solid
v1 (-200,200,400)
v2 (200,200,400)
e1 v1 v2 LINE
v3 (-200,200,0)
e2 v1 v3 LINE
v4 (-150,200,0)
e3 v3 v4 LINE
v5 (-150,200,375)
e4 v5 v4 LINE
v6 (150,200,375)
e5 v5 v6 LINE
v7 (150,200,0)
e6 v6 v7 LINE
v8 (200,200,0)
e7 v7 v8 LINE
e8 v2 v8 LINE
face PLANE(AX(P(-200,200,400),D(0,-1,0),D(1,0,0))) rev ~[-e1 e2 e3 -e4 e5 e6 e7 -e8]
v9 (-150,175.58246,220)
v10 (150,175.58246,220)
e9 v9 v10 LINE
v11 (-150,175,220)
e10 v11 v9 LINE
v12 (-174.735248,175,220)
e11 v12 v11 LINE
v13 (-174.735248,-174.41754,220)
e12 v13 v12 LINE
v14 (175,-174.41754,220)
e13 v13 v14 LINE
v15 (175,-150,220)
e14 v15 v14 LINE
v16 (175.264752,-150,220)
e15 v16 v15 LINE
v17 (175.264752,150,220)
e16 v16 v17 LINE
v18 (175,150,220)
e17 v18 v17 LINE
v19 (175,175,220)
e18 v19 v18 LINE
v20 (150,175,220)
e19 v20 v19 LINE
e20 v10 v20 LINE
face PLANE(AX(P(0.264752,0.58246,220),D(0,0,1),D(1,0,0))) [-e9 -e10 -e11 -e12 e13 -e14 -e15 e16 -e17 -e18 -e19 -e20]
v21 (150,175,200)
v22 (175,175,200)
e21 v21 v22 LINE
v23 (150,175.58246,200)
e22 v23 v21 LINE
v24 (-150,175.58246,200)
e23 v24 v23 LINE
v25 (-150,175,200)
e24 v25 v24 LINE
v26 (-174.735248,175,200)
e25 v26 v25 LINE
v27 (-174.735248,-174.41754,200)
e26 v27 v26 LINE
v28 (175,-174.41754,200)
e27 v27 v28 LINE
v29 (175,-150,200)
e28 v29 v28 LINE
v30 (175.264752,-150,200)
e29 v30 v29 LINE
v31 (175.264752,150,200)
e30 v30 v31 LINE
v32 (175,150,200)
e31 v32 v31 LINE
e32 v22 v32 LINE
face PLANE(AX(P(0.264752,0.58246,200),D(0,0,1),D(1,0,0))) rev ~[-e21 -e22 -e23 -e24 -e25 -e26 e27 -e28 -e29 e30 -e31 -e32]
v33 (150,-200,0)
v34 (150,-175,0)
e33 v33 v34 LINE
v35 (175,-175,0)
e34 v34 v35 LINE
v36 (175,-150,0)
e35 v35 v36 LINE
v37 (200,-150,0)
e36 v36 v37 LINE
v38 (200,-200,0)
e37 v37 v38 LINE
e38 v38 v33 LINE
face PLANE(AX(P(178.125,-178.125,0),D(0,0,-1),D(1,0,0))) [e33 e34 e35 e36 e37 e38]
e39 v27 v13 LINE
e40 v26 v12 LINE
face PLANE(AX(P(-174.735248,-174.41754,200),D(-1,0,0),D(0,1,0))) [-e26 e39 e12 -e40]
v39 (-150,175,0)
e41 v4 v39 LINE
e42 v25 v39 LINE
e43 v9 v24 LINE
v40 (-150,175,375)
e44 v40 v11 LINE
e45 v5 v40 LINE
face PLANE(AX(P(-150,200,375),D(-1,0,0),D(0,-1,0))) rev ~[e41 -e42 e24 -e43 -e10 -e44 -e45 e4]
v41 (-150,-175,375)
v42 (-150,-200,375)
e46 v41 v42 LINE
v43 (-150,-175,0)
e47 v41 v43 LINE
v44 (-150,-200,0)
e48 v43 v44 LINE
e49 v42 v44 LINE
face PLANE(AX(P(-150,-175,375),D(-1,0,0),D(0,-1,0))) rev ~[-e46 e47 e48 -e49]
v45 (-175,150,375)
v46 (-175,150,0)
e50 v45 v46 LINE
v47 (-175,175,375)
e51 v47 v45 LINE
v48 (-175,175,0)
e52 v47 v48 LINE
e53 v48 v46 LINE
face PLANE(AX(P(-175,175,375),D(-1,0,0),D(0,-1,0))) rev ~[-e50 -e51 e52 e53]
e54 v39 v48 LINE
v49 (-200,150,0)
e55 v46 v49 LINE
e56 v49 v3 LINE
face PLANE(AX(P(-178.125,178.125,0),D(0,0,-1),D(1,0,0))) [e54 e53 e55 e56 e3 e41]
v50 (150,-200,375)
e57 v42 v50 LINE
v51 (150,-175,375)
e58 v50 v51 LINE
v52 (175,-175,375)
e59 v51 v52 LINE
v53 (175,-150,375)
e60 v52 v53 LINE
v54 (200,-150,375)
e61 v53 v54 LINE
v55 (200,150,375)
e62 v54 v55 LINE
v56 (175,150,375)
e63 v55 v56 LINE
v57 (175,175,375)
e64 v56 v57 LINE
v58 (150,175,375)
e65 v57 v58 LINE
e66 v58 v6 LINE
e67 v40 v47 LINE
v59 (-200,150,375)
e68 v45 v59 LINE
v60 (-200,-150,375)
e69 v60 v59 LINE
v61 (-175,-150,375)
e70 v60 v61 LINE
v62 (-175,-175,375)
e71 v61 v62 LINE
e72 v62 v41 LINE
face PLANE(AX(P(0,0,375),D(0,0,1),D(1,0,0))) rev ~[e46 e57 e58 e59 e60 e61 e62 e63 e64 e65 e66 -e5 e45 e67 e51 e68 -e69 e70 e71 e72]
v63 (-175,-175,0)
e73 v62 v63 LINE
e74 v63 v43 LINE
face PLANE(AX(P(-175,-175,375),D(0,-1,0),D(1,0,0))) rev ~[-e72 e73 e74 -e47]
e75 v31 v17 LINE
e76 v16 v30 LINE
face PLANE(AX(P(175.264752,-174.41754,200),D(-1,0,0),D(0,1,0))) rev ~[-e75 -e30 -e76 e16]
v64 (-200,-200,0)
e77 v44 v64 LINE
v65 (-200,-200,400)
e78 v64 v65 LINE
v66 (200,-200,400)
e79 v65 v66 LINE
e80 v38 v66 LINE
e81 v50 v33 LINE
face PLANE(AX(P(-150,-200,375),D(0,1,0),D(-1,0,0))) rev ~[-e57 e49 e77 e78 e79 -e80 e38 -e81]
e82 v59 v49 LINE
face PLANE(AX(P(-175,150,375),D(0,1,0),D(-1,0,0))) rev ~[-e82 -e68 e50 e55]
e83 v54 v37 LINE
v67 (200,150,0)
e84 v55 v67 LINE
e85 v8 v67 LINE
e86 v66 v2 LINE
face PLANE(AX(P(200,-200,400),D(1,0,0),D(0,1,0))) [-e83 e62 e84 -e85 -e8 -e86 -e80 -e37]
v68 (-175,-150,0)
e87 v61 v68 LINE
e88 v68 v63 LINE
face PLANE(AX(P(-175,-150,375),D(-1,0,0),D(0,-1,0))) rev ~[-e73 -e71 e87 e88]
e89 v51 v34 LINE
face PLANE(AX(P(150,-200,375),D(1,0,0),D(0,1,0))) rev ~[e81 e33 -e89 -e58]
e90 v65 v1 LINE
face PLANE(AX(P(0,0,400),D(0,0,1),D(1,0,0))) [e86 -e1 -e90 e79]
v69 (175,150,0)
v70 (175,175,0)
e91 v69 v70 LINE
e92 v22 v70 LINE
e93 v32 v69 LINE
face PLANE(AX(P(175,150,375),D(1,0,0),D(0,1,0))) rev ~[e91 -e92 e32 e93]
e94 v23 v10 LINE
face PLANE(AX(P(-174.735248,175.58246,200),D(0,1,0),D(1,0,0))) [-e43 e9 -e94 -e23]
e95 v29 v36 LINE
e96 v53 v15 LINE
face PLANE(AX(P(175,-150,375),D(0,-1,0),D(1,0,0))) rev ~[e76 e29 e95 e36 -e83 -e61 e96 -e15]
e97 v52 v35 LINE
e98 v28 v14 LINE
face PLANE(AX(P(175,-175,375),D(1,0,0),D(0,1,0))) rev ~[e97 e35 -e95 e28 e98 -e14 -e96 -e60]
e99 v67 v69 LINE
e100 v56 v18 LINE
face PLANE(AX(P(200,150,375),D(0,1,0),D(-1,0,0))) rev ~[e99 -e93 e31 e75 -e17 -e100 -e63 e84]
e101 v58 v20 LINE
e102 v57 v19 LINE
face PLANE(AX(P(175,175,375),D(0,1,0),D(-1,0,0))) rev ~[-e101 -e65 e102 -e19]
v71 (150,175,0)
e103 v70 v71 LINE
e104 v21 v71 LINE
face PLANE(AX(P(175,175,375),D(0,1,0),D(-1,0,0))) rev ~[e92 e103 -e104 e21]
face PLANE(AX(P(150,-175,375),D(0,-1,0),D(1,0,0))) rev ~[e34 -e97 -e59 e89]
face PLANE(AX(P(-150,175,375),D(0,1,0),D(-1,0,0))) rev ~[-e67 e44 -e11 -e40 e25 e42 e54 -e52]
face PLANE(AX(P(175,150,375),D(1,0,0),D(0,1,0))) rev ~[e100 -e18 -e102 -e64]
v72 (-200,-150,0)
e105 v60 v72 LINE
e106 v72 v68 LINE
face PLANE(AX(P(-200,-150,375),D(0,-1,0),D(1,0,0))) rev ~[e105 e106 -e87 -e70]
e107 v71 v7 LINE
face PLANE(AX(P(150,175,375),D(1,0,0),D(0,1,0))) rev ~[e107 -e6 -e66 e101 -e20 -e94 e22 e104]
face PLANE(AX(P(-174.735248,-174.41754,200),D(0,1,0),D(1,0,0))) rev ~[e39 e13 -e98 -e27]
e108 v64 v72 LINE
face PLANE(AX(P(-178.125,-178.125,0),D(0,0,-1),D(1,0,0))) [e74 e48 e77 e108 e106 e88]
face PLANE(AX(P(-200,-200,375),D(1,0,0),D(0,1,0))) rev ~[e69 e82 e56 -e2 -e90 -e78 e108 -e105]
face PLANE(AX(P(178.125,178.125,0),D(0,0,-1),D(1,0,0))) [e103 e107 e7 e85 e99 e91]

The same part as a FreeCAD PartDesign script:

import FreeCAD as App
import Part
import Sketcher

doc = App.newDocument("Part")
body = doc.addObject("PartDesign::Body", "Body")

sketch1 = doc.addObject("Sketcher::SketchObject", "Sketch")
body.addObject(sketch1)
sketch1.AttachmentSupport = (doc.XY_Plane, [""])
sketch1.MapMode = "FlatFace"
sketch1.AttachmentOffset = App.Placement(App.Vector(0, 0, 400), App.Rotation())
sketch1.addGeometry([
    Part.LineSegment(App.Vector(-200, 200, 0), App.Vector(-200, -200, 0)),
    Part.LineSegment(App.Vector(-200, -200, 0), App.Vector(200, -200, 0)),
    Part.LineSegment(App.Vector(200, -200, 0), App.Vector(200, 200, 0)),
    Part.LineSegment(App.Vector(200, 200, 0), App.Vector(-200, 200, 0)),
], False)
sketch1.addConstraint([
    Sketcher.Constraint("Coincident", 0, 2, 1, 1),
    Sketcher.Constraint("Coincident", 1, 2, 2, 1),
    Sketcher.Constraint("Coincident", 2, 2, 3, 1),
    Sketcher.Constraint("Coincident", 3, 2, 0, 1),
    Sketcher.Constraint("Vertical", 0),
    Sketcher.Constraint("Horizontal", 1),
    Sketcher.Constraint("Vertical", 2),
    Sketcher.Constraint("Horizontal", 3),
    Sketcher.Constraint("Symmetric", 0, 2, 2, 2, -1, 1),
    Sketcher.Constraint("Equal", 3, 0),
    Sketcher.Constraint("DistanceX", 1, 1, 1, 2, 400.0),
])
pad1 = doc.addObject("PartDesign::Pad", "Pad")
body.addObject(pad1)
pad1.Profile = sketch1
pad1.Length = 25
pad1.Reversed = True

sketch2 = doc.addObject("Sketcher::SketchObject", "Sketch001")
body.addObject(sketch2)
sketch2.AttachmentSupport = (doc.XY_Plane, [""])
sketch2.MapMode = "FlatFace"
sketch2.AttachmentOffset = App.Placement(App.Vector(0, 0, 375), App.Rotation())
sketch2.addGeometry([
    Part.LineSegment(App.Vector(-200, -200, 0), App.Vector(-200, -150, 0)),
    Part.LineSegment(App.Vector(-200, -150, 0), App.Vector(-175, -150, 0)),
    Part.LineSegment(App.Vector(-175, -150, 0), App.Vector(-175, -175, 0)),
    Part.LineSegment(App.Vector(-175, -175, 0), App.Vector(-150, -175, 0)),
    Part.LineSegment(App.Vector(-150, -175, 0), App.Vector(-150, -200, 0)),
    Part.LineSegment(App.Vector(-150, -200, 0), App.Vector(-200, -200, 0)),
    Part.LineSegment(App.Vector(175, -150, 0), App.Vector(200, -150, 0)),
    Part.LineSegment(App.Vector(200, -150, 0), App.Vector(200, -200, 0)),
    Part.LineSegment(App.Vector(200, -200, 0), App.Vector(150, -200, 0)),
    Part.LineSegment(App.Vector(150, -200, 0), App.Vector(150, -175, 0)),
    Part.LineSegment(App.Vector(150, -175, 0), App.Vector(175, -175, 0)),
    Part.LineSegment(App.Vector(175, -175, 0), App.Vector(175, -150, 0)),
    Part.LineSegment(App.Vector(-150, 175, 0), App.Vector(-175, 175, 0)),
    Part.LineSegment(App.Vector(-175, 175, 0), App.Vector(-175, 150, 0)),
    Part.LineSegment(App.Vector(-175, 150, 0), App.Vector(-200, 150, 0)),
    Part.LineSegment(App.Vector(-200, 150, 0), App.Vector(-200, 200, 0)),
    Part.LineSegment(App.Vector(-200, 200, 0), App.Vector(-150, 200, 0)),
    Part.LineSegment(App.Vector(-150, 200, 0), App.Vector(-150, 175, 0)),
    Part.LineSegment(App.Vector(200, 200, 0), App.Vector(200, 150, 0)),
    Part.LineSegment(App.Vector(200, 150, 0), App.Vector(175, 150, 0)),
    Part.LineSegment(App.Vector(175, 150, 0), App.Vector(175, 175, 0)),
    Part.LineSegment(App.Vector(175, 175, 0), App.Vector(150, 175, 0)),
    Part.LineSegment(App.Vector(150, 175, 0), App.Vector(150, 200, 0)),
    Part.LineSegment(App.Vector(150, 200, 0), App.Vector(200, 200, 0)),
], False)
sketch2.addConstraint([
    Sketcher.Constraint("Coincident", 0, 2, 1, 1),
    Sketcher.Constraint("Coincident", 1, 2, 2, 1),
    Sketcher.Constraint("Coincident", 2, 2, 3, 1),
    Sketcher.Constraint("Coincident", 3, 2, 4, 1),
    Sketcher.Constraint("Coincident", 4, 2, 5, 1),
    Sketcher.Constraint("Coincident", 5, 2, 0, 1),
    Sketcher.Constraint("Coincident", 6, 2, 7, 1),
    Sketcher.Constraint("Coincident", 7, 2, 8, 1),
    Sketcher.Constraint("Coincident", 8, 2, 9, 1),
    Sketcher.Constraint("Coincident", 9, 2, 10, 1),
    Sketcher.Constraint("Coincident", 10, 2, 11, 1),
    Sketcher.Constraint("Coincident", 11, 2, 6, 1),
    Sketcher.Constraint("Coincident", 12, 2, 13, 1),
    Sketcher.Constraint("Coincident", 13, 2, 14, 1),
    Sketcher.Constraint("Coincident", 14, 2, 15, 1),
    Sketcher.Constraint("Coincident", 15, 2, 16, 1),
    Sketcher.Constraint("Coincident", 16, 2, 17, 1),
    Sketcher.Constraint("Coincident", 17, 2, 12, 1),
    Sketcher.Constraint("Coincident", 18, 2, 19, 1),
    Sketcher.Constraint("Coincident", 19, 2, 20, 1),
    Sketcher.Constraint("Coincident", 20, 2, 21, 1),
    Sketcher.Constraint("Coincident", 21, 2, 22, 1),
    Sketcher.Constraint("Coincident", 22, 2, 23, 1),
    Sketcher.Constraint("Coincident", 23, 2, 18, 1),
    Sketcher.Constraint("Vertical", 0),
    Sketcher.Constraint("Horizontal", 1),
    Sketcher.Constraint("Vertical", 2),
    Sketcher.Constraint("Horizontal", 3),
    Sketcher.Constraint("Vertical", 4),
    Sketcher.Constraint("Horizontal", 5),
    Sketcher.Constraint("Horizontal", 6),
    Sketcher.Constraint("Vertical", 7),
    Sketcher.Constraint("Horizontal", 8),
    Sketcher.Constraint("Vertical", 9),
    Sketcher.Constraint("Horizontal", 10),
    Sketcher.Constraint("Vertical", 11),
    Sketcher.Constraint("Horizontal", 12),
    Sketcher.Constraint("Vertical", 13),
    Sketcher.Constraint("Horizontal", 14),
    Sketcher.Constraint("Vertical", 15),
    Sketcher.Constraint("Horizontal", 16),
    Sketcher.Constraint("Vertical", 17),
    Sketcher.Constraint("Vertical", 18),
    Sketcher.Constraint("Horizontal", 19),
    Sketcher.Constraint("Vertical", 20),
    Sketcher.Constraint("Horizontal", 21),
    Sketcher.Constraint("Vertical", 22),
    Sketcher.Constraint("Horizontal", 23),
    Sketcher.Constraint("Symmetric", 10, 2, 12, 2, -1, 1),
    Sketcher.Constraint("Symmetric", 6, 2, 14, 2, -1, 1),
    Sketcher.Constraint("Symmetric", 8, 2, 16, 2, -1, 1),
    Sketcher.Constraint("Symmetric", 0, 2, 18, 2, -1, 1),
    Sketcher.Constraint("Symmetric", 2, 2, 20, 2, -1, 1),
    Sketcher.Constraint("Symmetric", 4, 2, 22, 2, -1, 1),
    Sketcher.Constraint("Symmetric", 0, 2, 6, 2, -2),
    Sketcher.Constraint("Symmetric", 4, 2, 8, 2, -2),
    Sketcher.Constraint("Symmetric", 2, 2, 10, 2, -2),
    Sketcher.Constraint("Equal", 1, 3),
    Sketcher.Constraint("Equal", 23, 0),
    Sketcher.Constraint("Equal", 21, 2),
    Sketcher.Constraint("DistanceX", 1, 1, 1, 2, 25.0),
    Sketcher.Constraint("DistanceX", 0, 2, -1, 1, 200.0),
    Sketcher.Constraint("DistanceY", 0, 2, -1, 1, 150.0),
])
pad2 = doc.addObject("PartDesign::Pad", "Pad001")
body.addObject(pad2)
pad2.Profile = sketch2
pad2.Length = 375
pad2.Reversed = True

sketch3 = doc.addObject("Sketcher::SketchObject", "Sketch002")
body.addObject(sketch3)
sketch3.AttachmentSupport = (doc.XY_Plane, [""])
sketch3.MapMode = "FlatFace"
sketch3.AttachmentOffset = App.Placement(App.Vector(0, 0, 200), App.Rotation())
sketch3.addGeometry([
    Part.LineSegment(App.Vector(-175, 176, 0), App.Vector(-175, -174, 0)),
    Part.LineSegment(App.Vector(-175, -174, 0), App.Vector(175, -174, 0)),
    Part.LineSegment(App.Vector(175, -174, 0), App.Vector(175, 176, 0)),
    Part.LineSegment(App.Vector(175, 176, 0), App.Vector(-175, 176, 0)),
], False)
sketch3.addConstraint([
    Sketcher.Constraint("Coincident", 0, 2, 1, 1),
    Sketcher.Constraint("Coincident", 1, 2, 2, 1),
    Sketcher.Constraint("Coincident", 2, 2, 3, 1),
    Sketcher.Constraint("Coincident", 3, 2, 0, 1),
    Sketcher.Constraint("Vertical", 0),
    Sketcher.Constraint("Horizontal", 1),
    Sketcher.Constraint("Vertical", 2),
    Sketcher.Constraint("Horizontal", 3),
    Sketcher.Constraint("Equal", 3, 0),
    Sketcher.Constraint("DistanceX", 1, 1, 1, 2, 350.0),
    Sketcher.Constraint("DistanceX", 0, 2, -1, 1, 174.735248),
    Sketcher.Constraint("DistanceY", 0, 2, -1, 1, 174.41754),
])
pad3 = doc.addObject("PartDesign::Pad", "Pad002")
body.addObject(pad3)
pad3.Profile = sketch3
pad3.Length = 20

doc.recompute()
